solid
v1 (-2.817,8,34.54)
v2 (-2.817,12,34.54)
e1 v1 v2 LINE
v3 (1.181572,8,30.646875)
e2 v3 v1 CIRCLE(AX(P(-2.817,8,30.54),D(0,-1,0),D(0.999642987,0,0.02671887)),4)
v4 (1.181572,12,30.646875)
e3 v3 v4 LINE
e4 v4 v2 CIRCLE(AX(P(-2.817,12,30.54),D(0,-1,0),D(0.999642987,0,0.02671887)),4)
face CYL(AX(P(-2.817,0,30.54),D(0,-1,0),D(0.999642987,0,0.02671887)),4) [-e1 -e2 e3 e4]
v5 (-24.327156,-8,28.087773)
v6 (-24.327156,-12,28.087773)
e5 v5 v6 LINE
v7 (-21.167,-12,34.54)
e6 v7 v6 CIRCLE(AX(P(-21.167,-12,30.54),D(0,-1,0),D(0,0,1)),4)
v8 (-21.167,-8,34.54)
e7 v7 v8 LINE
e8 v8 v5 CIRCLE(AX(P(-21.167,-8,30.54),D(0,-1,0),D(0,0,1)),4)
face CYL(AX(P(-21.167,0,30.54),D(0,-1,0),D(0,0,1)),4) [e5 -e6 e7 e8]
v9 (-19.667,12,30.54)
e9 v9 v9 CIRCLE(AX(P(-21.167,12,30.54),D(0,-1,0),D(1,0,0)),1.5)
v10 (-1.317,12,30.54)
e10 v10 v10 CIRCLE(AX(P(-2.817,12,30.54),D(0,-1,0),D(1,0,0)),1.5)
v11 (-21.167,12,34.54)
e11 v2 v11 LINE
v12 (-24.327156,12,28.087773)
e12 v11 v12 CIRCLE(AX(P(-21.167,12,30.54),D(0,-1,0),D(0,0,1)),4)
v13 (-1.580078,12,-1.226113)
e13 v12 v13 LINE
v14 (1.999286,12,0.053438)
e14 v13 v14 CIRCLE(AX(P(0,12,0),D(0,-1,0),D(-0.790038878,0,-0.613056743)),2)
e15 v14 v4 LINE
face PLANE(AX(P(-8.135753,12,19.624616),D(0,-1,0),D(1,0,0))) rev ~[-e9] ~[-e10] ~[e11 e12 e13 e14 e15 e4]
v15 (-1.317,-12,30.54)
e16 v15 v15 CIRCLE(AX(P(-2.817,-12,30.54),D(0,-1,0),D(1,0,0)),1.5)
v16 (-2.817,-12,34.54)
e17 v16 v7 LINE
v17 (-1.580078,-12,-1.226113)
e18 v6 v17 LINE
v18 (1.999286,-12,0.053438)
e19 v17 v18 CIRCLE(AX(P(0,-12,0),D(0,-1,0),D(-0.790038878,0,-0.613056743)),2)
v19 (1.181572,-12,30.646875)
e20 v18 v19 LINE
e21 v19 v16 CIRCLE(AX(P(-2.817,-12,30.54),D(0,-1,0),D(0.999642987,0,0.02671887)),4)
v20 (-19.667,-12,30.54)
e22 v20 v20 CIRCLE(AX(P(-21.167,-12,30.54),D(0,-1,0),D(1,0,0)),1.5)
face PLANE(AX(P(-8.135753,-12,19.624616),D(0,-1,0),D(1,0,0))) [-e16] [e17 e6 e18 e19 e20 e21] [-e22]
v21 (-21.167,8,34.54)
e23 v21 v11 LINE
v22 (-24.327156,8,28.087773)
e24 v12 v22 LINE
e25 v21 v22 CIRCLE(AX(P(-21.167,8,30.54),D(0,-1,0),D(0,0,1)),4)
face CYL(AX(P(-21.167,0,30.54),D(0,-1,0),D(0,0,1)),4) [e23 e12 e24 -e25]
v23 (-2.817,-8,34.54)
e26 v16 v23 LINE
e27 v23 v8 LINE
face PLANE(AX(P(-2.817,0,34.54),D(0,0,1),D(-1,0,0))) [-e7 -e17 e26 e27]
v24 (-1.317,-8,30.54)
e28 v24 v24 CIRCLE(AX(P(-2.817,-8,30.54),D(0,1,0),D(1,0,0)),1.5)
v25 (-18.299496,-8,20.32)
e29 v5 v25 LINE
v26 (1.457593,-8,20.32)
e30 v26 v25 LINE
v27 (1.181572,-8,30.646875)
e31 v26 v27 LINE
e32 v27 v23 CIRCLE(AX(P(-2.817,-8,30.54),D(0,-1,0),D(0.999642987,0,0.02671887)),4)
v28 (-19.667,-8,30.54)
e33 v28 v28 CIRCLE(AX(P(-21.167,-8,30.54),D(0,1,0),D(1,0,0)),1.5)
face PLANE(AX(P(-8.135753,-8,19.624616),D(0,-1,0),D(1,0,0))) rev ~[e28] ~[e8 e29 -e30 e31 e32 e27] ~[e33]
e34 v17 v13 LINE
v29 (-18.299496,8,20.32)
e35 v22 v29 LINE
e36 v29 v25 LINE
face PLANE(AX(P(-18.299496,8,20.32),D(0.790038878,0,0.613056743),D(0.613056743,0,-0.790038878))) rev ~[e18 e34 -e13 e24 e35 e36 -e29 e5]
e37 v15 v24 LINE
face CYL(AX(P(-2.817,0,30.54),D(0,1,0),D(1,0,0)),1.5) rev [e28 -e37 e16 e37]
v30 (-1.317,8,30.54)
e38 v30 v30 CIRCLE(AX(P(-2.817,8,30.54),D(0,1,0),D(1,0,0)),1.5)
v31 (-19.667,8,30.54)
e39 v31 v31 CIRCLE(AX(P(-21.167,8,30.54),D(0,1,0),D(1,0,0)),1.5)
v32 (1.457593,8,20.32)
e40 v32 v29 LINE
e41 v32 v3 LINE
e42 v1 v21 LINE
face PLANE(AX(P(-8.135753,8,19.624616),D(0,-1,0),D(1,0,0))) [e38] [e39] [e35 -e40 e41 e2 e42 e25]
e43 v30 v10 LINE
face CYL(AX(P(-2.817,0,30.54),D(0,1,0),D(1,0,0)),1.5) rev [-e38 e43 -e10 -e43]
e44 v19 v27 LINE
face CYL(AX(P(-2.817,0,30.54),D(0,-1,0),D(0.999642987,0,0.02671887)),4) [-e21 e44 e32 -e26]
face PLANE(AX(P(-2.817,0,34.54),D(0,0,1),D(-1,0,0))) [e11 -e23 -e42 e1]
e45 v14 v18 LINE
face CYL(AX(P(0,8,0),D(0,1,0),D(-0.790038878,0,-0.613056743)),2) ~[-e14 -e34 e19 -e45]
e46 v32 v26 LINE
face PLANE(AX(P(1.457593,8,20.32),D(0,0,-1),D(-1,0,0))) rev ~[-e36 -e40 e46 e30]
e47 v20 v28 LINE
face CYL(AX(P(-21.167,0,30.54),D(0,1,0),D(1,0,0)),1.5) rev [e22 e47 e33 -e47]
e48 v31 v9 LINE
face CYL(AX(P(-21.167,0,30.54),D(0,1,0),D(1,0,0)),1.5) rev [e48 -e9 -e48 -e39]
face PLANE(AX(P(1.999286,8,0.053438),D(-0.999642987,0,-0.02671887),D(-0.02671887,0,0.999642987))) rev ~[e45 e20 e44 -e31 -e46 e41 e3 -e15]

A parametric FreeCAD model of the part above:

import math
import FreeCAD as App
import Part
import Sketcher
Q = App.Units.Quantity

doc = App.newDocument("Part")
body = doc.addObject("PartDesign::Body", "Body")
body.AllowCompound = True

sketch1 = doc.addObject("Sketcher::SketchObject", "Sketch")
body.addObject(sketch1)
sketch1.AttachmentSupport = (doc.XZ_Plane, [""])
sketch1.MapMode = "FlatFace"
sketch1.addGeometry([
    Part.ArcOfCircle(Part.Circle(App.Vector(-21.2, 30.5, 0), App.Vector(0, 0, 1), 4), math.radians(90), math.radians(218)),
    Part.LineSegment(App.Vector(-24.3, 28.1, 0), App.Vector(-1.6, -1.2, 0)),
    Part.ArcOfCircle(Part.Circle(App.Vector(0, 0, 0), App.Vector(0, 0, 1), 2), math.radians(-142), math.radians(2)),
    Part.LineSegment(App.Vector(2, 0.1, 0), App.Vector(1.2, 30.6, 0)),
    Part.ArcOfCircle(Part.Circle(App.Vector(-2.8, 30.5, 0), App.Vector(0, 0, 1), 4), math.radians(2), math.radians(90)),
    Part.LineSegment(App.Vector(-2.8, 34.5, 0), App.Vector(-21.2, 34.5, 0)),
    Part.Circle(App.Vector(-21.2, 30.5, 0), App.Vector(0, 0, 1), 1.5),
    Part.Circle(App.Vector(-2.8, 30.5, 0), App.Vector(0, 0, 1), 1.5),
], False)
sketch1.addConstraint([
    Sketcher.Constraint("Tangent", 0, 2, 1, 1),
    Sketcher.Constraint("Tangent", 1, 2, 2, 1),
    Sketcher.Constraint("Tangent", 2, 2, 3, 1),
    Sketcher.Constraint("Tangent", 3, 2, 4, 1),
    Sketcher.Constraint("Tangent", 4, 2, 5, 1),
    Sketcher.Constraint("Tangent", 5, 2, 0, 1),
    Sketcher.Constraint("Horizontal", 5),
    Sketcher.Constraint("Coincident", 2, 3, -1, 1),
    Sketcher.Constraint("Coincident", 6, 3, 0, 3),
    Sketcher.Constraint("Coincident", 7, 3, 4, 3),
    Sketcher.Constraint("Equal", 0, 4),
    Sketcher.Constraint("Equal", 6, 7),
    Sketcher.Constraint("Diameter", 6, Q("3 mm")),
    Sketcher.Constraint("Radius", 0, Q("4 mm")),
    Sketcher.Constraint("Radius", 2, Q("2 mm")),
    Sketcher.Constraint("DistanceX", 5, 2, 5, 1, Q("18.35 mm")),
    Sketcher.Constraint("DistanceY", -1, 1, 0, 3, Q("30.54 mm")),
    Sketcher.Constraint("DistanceX", 0, 3, -1, 1, Q("21.167 mm")),
])
pad1 = doc.addObject("PartDesign::Pad", "Pad")
body.addObject(pad1)
pad1.Profile = sketch1
pad1.Length = 24
pad1.Midplane = True

sketch2 = doc.addObject("Sketcher::SketchObject", "Sketch001")
body.addObject(sketch2)
sketch2.AttachmentSupport = (doc.XZ_Plane, [""])
sketch2.MapMode = "FlatFace"
sketch2.addGeometry([
    Part.ArcOfCircle(Part.Circle(App.Vector(0, 0, 0), App.Vector(0, 0, 1), 2), math.radians(-142), math.radians(2)),
    Part.LineSegment(App.Vector(2, 0.1, 0), App.Vector(1.2, 30.6, 0)),
    Part.ArcOfCircle(Part.Circle(App.Vector(-2.8, 30.5, 0), App.Vector(0, 0, 1), 4), math.radians(2), math.radians(90)),
    Part.LineSegment(App.Vector(-2.8, 34.5, 0), App.Vector(-21.2, 34.5, 0)),
    Part.ArcOfCircle(Part.Circle(App.Vector(-21.2, 30.5, 0), App.Vector(0, 0, 1), 4), math.radians(90), math.radians(218)),
    Part.LineSegment(App.Vector(-24.3, 28.1, 0), App.Vector(-1.6, -1.2, 0)),
], False)
sketch2.addConstraint([
    Sketcher.Constraint("Tangent", 0, 2, 1, 1),
    Sketcher.Constraint("Tangent", 1, 2, 2, 1),
    Sketcher.Constraint("Tangent", 2, 2, 3, 1),
    Sketcher.Constraint("Tangent", 3, 2, 4, 1),
    Sketcher.Constraint("Tangent", 4, 2, 5, 1),
    Sketcher.Constraint("Tangent", 5, 2, 0, 1),
    Sketcher.Constraint("Horizontal", 3),
    Sketcher.Constraint("Coincident", 0, 3, -1, 1),
    Sketcher.Constraint("Equal", 2, 4),
    Sketcher.Constraint("Radius", 0, Q("2 mm")),
    Sketcher.Constraint("Radius", 2, Q("4 mm")),
    Sketcher.Constraint("DistanceX", 3, 2, 3, 1, Q("18.35 mm")),
    Sketcher.Constraint("DistanceY", -1, 1, 2, 3, Q("30.54 mm")),
    Sketcher.Constraint("DistanceX", 2, 3, -1, 1, Q("2.817 mm")),
])
pocket1 = doc.addObject("PartDesign::Pocket", "Pocket")
body.addObject(pocket1)
pocket1.Profile = sketch2
pocket1.Length = 16
pocket1.Midplane = True

sketch3 = doc.addObject("Sketcher::SketchObject", "Sketch002")
body.addObject(sketch3)
sketch3.AttachmentSupport = (doc.XZ_Plane, [""])
sketch3.MapMode = "FlatFace"
sketch3.AttachmentOffset = App.Placement(App.Vector(0, 0, -8), App.Rotation())
sketch3.addGeometry([
    Part.ArcOfCircle(Part.Circle(App.Vector(0, 0, 0), App.Vector(0, 0, 1), 2), math.radians(-142), math.radians(2)),
    Part.LineSegment(App.Vector(2, 0.1, 0), App.Vector(1.5, 20.3, 0)),
    Part.LineSegment(App.Vector(1.5, 20.3, 0), App.Vector(-18.3, 20.3, 0)),
    Part.LineSegment(App.Vector(-18.3, 20.3, 0), App.Vector(-1.6, -1.2, 0)),
], False)
sketch3.addConstraint([
    Sketcher.Constraint("Tangent", 0, 2, 1, 1),
    Sketcher.Constraint("Coincident", 1, 2, 2, 1),
    Sketcher.Constraint("Coincident", 2, 2, 3, 1),
    Sketcher.Constraint("Tangent", 3, 2, 0, 1),
    Sketcher.Constraint("Horizontal", 2),
    Sketcher.Constraint("Coincident", 0, 3, -1, 1),
    Sketcher.Constraint("Radius", 0, Q("2 mm")),
    Sketcher.Constraint("DistanceY", -1, 1, 1, 2, Q("20.32 mm")),
    Sketcher.Constraint("Distance", 1, Q("20.2738 mm")),
    Sketcher.Constraint("DistanceX", 2, 2, 2, 1, Q("19.757089 mm")),
])
pad2 = doc.addObject("PartDesign::Pad", "Pad001")
body.addObject(pad2)
pad2.Profile = sketch3
pad2.Length = 16

doc.recompute()
